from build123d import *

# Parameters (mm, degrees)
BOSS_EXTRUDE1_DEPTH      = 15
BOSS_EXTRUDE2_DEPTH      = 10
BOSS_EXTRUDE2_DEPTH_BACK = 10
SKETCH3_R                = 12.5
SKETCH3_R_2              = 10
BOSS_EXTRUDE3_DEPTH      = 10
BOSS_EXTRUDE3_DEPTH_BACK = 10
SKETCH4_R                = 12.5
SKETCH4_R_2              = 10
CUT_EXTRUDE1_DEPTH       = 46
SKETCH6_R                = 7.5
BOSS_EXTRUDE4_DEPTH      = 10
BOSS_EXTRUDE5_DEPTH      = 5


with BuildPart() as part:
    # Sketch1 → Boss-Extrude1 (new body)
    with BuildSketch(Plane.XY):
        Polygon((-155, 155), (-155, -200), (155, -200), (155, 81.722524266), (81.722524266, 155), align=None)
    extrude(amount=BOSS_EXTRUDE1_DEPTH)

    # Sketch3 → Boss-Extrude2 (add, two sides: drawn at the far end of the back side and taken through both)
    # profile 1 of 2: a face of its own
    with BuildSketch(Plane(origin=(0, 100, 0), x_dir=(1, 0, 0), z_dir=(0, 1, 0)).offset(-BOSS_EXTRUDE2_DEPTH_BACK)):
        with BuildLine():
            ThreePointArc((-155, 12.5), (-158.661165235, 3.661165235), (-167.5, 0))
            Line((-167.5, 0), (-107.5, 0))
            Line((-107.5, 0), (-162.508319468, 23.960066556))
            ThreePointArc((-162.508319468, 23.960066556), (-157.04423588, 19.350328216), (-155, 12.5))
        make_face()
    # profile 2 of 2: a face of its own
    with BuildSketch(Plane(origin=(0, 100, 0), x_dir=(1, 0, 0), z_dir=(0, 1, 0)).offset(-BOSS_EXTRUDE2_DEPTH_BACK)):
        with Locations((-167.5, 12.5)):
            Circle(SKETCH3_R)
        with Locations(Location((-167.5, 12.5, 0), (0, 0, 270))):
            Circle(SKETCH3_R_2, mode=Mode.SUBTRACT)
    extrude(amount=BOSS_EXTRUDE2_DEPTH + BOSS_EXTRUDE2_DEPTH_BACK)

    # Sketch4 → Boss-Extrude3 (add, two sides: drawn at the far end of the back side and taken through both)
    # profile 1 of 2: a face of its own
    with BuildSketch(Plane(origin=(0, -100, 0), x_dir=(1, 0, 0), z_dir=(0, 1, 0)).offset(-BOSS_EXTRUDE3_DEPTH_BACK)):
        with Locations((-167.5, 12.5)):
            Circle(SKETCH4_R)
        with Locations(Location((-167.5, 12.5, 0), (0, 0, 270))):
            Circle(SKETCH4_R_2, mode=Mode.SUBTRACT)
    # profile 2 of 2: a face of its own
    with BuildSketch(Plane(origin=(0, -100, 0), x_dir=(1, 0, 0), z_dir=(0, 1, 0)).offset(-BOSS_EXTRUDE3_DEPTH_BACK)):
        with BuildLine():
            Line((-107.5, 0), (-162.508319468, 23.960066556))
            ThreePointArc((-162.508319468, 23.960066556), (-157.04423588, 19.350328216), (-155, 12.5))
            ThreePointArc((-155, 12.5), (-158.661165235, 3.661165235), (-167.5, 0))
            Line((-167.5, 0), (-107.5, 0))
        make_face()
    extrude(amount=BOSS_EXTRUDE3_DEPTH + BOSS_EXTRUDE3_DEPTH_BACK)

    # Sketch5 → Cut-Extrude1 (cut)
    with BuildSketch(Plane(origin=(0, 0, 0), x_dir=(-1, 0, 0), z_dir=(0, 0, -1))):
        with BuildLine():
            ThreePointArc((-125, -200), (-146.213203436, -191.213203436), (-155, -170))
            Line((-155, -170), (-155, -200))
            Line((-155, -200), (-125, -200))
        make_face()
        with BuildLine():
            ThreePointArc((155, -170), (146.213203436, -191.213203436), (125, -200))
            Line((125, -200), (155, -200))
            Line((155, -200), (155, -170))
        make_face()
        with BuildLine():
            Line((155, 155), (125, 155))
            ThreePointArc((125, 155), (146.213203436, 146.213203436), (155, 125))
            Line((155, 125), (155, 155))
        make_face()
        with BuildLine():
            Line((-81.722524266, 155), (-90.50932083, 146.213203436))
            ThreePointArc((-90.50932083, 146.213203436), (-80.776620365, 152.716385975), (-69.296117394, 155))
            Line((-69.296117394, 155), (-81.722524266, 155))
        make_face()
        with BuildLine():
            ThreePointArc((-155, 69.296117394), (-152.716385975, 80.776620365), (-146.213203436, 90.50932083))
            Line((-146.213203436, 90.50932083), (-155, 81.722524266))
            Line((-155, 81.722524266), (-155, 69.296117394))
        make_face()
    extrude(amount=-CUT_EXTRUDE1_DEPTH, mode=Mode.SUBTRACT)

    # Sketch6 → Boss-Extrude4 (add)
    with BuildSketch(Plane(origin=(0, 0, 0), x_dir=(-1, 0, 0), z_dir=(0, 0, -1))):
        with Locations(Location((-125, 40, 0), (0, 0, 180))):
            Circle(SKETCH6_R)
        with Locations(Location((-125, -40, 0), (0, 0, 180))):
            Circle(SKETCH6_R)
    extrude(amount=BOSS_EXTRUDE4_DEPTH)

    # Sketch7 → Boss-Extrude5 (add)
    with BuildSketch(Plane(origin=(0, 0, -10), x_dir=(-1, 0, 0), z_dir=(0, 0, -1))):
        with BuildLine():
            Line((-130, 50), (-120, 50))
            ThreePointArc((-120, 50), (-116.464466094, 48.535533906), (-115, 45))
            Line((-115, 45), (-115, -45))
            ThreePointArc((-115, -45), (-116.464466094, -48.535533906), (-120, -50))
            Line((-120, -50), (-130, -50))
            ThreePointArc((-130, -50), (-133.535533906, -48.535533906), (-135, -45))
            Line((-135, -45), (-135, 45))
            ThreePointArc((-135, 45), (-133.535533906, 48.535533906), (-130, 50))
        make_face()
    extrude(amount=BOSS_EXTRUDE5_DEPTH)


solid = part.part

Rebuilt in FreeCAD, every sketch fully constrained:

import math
import FreeCAD as App
import Part
import Sketcher
from FreeCAD import Vector
Q = App.Units.Quantity


def add_polygon(sketch, points):
    """Adds a closed chain of lines whose ends are joined by coincident constraints."""
    first, n = sketch.GeometryCount, len(points)
    for a, b in zip(points, points[1:] + points[:1]):
        sketch.addGeometry(Part.LineSegment(App.Vector(*a, 0), App.Vector(*b, 0)), False)
    for i in range(n):
        sketch.addConstraint(Sketcher.Constraint("Coincident", first + i, 2, first + (i + 1) % n, 1))

doc = App.newDocument("Part")
body = doc.addObject("PartDesign::Body", "Body")

# Sketch on XY plane
sketch1 = doc.addObject("Sketcher::SketchObject", "Sketch")
body.addObject(sketch1)
sketch1.AttachmentSupport = (doc.XY_Plane, [""])
sketch1.MapMode = "FlatFace"
add_polygon(sketch1, [(-155, 155), (-155, -200), (155, -200), (155, 81.722524), (81.722524, 155)])  # lines 0-4
sketch1.addConstraint(Sketcher.Constraint("Vertical", 0))
sketch1.addConstraint(Sketcher.Constraint("Horizontal", 1))
sketch1.addConstraint(Sketcher.Constraint("Vertical", 2))
sketch1.addConstraint(Sketcher.Constraint("Horizontal", 4))
sketch1.addConstraint(Sketcher.Constraint("DistanceX", 1, 1, 1, 2, Q("310 mm")))
sketch1.addConstraint(Sketcher.Constraint("DistanceY", 0, 2, 0, 1, Q("355 mm")))
sketch1.addConstraint(Sketcher.Constraint("Angle", 3, Q("135 deg")))
sketch1.addConstraint(Sketcher.Constraint("DistanceX", 0, 2, -1, 1, Q("155 mm")))
sketch1.addConstraint(Sketcher.Constraint("DistanceY", 0, 2, -1, 1, Q("200 mm")))
sketch1.addConstraint(Sketcher.Constraint("Distance", 3, Q("103.63 mm")))
pad1 = doc.addObject("PartDesign::Pad", "Pad")
body.addObject(pad1)
pad1.Profile = sketch1
pad1.Length = 15

# Sketch on XZ plane
sketch2 = doc.addObject("Sketcher::SketchObject", "Sketch001")
body.addObject(sketch2)
sketch2.AttachmentSupport = (doc.XZ_Plane, [""])
sketch2.MapMode = "FlatFace"
sketch2.AttachmentOffset = App.Placement(Vector(0, 0, -100), App.Rotation())
sketch2.addGeometry(Part.LineSegment(Vector(-167.5, 0, 0), Vector(-107.5, 0, 0)), False)
sketch2.addGeometry(Part.LineSegment(Vector(-107.5, 0, 0), Vector(-162.508319, -23.960067, 0)), False)
sketch2.addGeometry(Part.ArcOfCircle(Part.Circle(Vector(-167.5, -12.5, 0), Vector(0, 0, 1), 12.5), math.radians(90), math.radians(293.536578)), False)
sketch2.addGeometry(Part.Circle(Vector(-167.5, -12.5, 0), Vector(0, 0, 1), 10), False)
sketch2.addConstraint(Sketcher.Constraint("Coincident", 0, 2, 1, 1))
sketch2.addConstraint(Sketcher.Constraint("Tangent", 1, 2, 2, 2))
sketch2.addConstraint(Sketcher.Constraint("Tangent", 2, 1, 0, 1))
sketch2.addConstraint(Sketcher.Constraint("Horizontal", 0))
sketch2.addConstraint(Sketcher.Constraint("Coincident", 3, 3, 2, 3))
sketch2.addConstraint(Sketcher.Constraint("PointOnObject", 0, 2, -1))
sketch2.addConstraint(Sketcher.Constraint("Diameter", 3, Q("20 mm")))
sketch2.addConstraint(Sketcher.Constraint("Radius", 2, Q("12.5 mm")))
sketch2.addConstraint(Sketcher.Constraint("DistanceX", 0, 1, 0, 2, Q("60 mm")))
sketch2.addConstraint(Sketcher.Constraint("DistanceX", 2, 3, -1, 1, Q("167.5 mm")))
pad2 = doc.addObject("PartDesign::Pad", "Pad001")
body.addObject(pad2)
pad2.Profile = sketch2
pad2.Type = "TwoLengths"
pad2.Length = 10
pad2.Length2 = 10
pad2.Reversed = True

# Sketch on XZ plane
sketch3 = doc.addObject("Sketcher::SketchObject", "Sketch002")
body.addObject(sketch3)
sketch3.AttachmentSupport = (doc.XZ_Plane, [""])
sketch3.MapMode = "FlatFace"
sketch3.AttachmentOffset = App.Placement(Vector(0, 0, 100), App.Rotation())
sketch3.addGeometry(Part.ArcOfCircle(Part.Circle(Vector(-167.5, -12.5, 0), Vector(0, 0, 1), 12.5), math.radians(90), math.radians(293.536578)), False)
sketch3.addGeometry(Part.LineSegment(Vector(-167.5, 0, 0), Vector(-107.5, 0, 0)), False)
sketch3.addGeometry(Part.LineSegment(Vector(-107.5, 0, 0), Vector(-162.508319, -23.960067, 0)), False)
sketch3.addGeometry(Part.Circle(Vector(-167.5, -12.5, 0), Vector(0, 0, 1), 10), False)
sketch3.addConstraint(Sketcher.Constraint("Tangent", 0, 1, 1, 1))
sketch3.addConstraint(Sketcher.Constraint("Coincident", 1, 2, 2, 1))
sketch3.addConstraint(Sketcher.Constraint("Tangent", 2, 2, 0, 2))
sketch3.addConstraint(Sketcher.Constraint("Horizontal", 1))
sketch3.addConstraint(Sketcher.Constraint("Coincident", 3, 3, 0, 3))
sketch3.addConstraint(Sketcher.Constraint("PointOnObject", 0, 1, -1))
sketch3.addConstraint(Sketcher.Constraint("Diameter", 3, Q("20 mm")))
sketch3.addConstraint(Sketcher.Constraint("Radius", 0, Q("12.5 mm")))
sketch3.addConstraint(Sketcher.Constraint("DistanceX", 1, 1, 1, 2, Q("60 mm")))
sketch3.addConstraint(Sketcher.Constraint("DistanceX", 0, 3, -1, 1, Q("167.5 mm")))
pad3 = doc.addObject("PartDesign::Pad", "Pad002")
body.addObject(pad3)
pad3.Profile = sketch3
pad3.Type = "TwoLengths"
pad3.Length = 10
pad3.Length2 = 10
pad3.Reversed = True

# Sketch on XY plane
sketch4 = doc.addObject("Sketcher::SketchObject", "Sketch003")
body.addObject(sketch4)
sketch4.AttachmentSupport = (doc.XY_Plane, [""])
sketch4.MapMode = "FlatFace"
sketch4.addGeometry(Part.ArcOfCircle(Part.Circle(Vector(125, -170, 0), Vector(0, 0, 1), 30), math.radians(-90), math.radians(0)), False)
sketch4.addGeometry(Part.LineSegment(Vector(155, -170, 0), Vector(155, -200, 0)), False)
sketch4.addGeometry(Part.LineSegment(Vector(155, -200, 0), Vector(125, -200, 0)), False)
sketch4.addGeometry(Part.ArcOfCircle(Part.Circle(Vector(-125, -170, 0), Vector(0, 0, 1), 30), math.radians(180), math.radians(270)), False)
sketch4.addGeometry(Part.LineSegment(Vector(-125, -200, 0), Vector(-155, -200, 0)), False)
sketch4.addGeometry(Part.LineSegment(Vector(-155, -200, 0), Vector(-155, -170, 0)), False)
sketch4.addGeometry(Part.LineSegment(Vector(-155, 155, 0), Vector(-125, 155, 0)), False)
sketch4.addGeometry(Part.ArcOfCircle(Part.Circle(Vector(-125, 125, 0), Vector(0, 0, 1), 30), math.radians(90), math.radians(180)), False)
sketch4.addGeometry(Part.LineSegment(Vector(-155, 125, 0), Vector(-155, 155, 0)), False)
sketch4.addGeometry(Part.LineSegment(Vector(81.722524, 155, 0), Vector(90.509321, 146.213203, 0)), False)
sketch4.addGeometry(Part.ArcOfCircle(Part.Circle(Vector(69.296117, 125, 0), Vector(0, 0, 1), 30), math.radians(45), math.radians(90)), False)
sketch4.addGeometry(Part.LineSegment(Vector(69.296117, 155, 0), Vector(81.722524, 155, 0)), False)
sketch4.addGeometry(Part.ArcOfCircle(Part.Circle(Vector(125, 69.296117, 0), Vector(0, 0, 1), 30), math.radians(0), math.radians(45)), False)
sketch4.addGeometry(Part.LineSegment(Vector(146.213203, 90.509321, 0), Vector(155, 81.722524, 0)), False)
sketch4.addGeometry(Part.LineSegment(Vector(155, 81.722524, 0), Vector(155, 69.296117, 0)), False)
sketch4.addConstraint(Sketcher.Constraint("Tangent", 0, 2, 1, 1))
sketch4.addConstraint(Sketcher.Constraint("Coincident", 1, 2, 2, 1))
sketch4.addConstraint(Sketcher.Constraint("Tangent", 2, 2, 0, 1))
sketch4.addConstraint(Sketcher.Constraint("Tangent", 3, 2, 4, 1))
sketch4.addConstraint(Sketcher.Constraint("Coincident", 4, 2, 5, 1))
sketch4.addConstraint(Sketcher.Constraint("Tangent", 5, 2, 3, 1))
sketch4.addConstraint(Sketcher.Constraint("Tangent", 6, 2, 7, 1))
sketch4.addConstraint(Sketcher.Constraint("Tangent", 7, 2, 8, 1))
sketch4.addConstraint(Sketcher.Constraint("Coincident", 8, 2, 6, 1))
sketch4.addConstraint(Sketcher.Constraint("Tangent", 9, 2, 10, 1))
sketch4.addConstraint(Sketcher.Constraint("Tangent", 10, 2, 11, 1))
sketch4.addConstraint(Sketcher.Constraint("Coincident", 11, 2, 9, 1))
sketch4.addConstraint(Sketcher.Constraint("Tangent", 12, 2, 13, 1))
sketch4.addConstraint(Sketcher.Constraint("Coincident", 13, 2, 14, 1))
sketch4.addConstraint(Sketcher.Constraint("Tangent", 14, 2, 12, 1))
sketch4.addConstraint(Sketcher.Constraint("Vertical", 1))
sketch4.addConstraint(Sketcher.Constraint("Horizontal", 2))
sketch4.addConstraint(Sketcher.Constraint("Horizontal", 4))
sketch4.addConstraint(Sketcher.Constraint("Vertical", 5))
sketch4.addConstraint(Sketcher.Constraint("Horizontal", 6))
sketch4.addConstraint(Sketcher.Constraint("Vertical", 8))
sketch4.addConstraint(Sketcher.Constraint("Horizontal", 11))
sketch4.addConstraint(Sketcher.Constraint("Vertical", 14))
sketch4.addConstraint(Sketcher.Constraint("Equal", 0, 3))
sketch4.addConstraint(Sketcher.Constraint("Equal", 3, 7))
sketch4.addConstraint(Sketcher.Constraint("Equal", 7, 10))
sketch4.addConstraint(Sketcher.Constraint("Equal", 10, 12))
sketch4.addConstraint(Sketcher.Constraint("Symmetric", 0, 3, 3, 3, -2))
sketch4.addConstraint(Sketcher.Constraint("Parallel", 9, 13))
sketch4.addConstraint(Sketcher.Constraint("Horizontal", 7, 3, 10, 3))
sketch4.addConstraint(Sketcher.Constraint("Vertical", 3, 3, 7, 3))
sketch4.addConstraint(Sketcher.Constraint("Vertical", 0, 3, 12, 3))
sketch4.addConstraint(Sketcher.Constraint("Equal", 11, 14))
sketch4.addConstraint(Sketcher.Constraint("Radius", 0, Q("30 mm")))
sketch4.addConstraint(Sketcher.Constraint("DistanceX", -1, 1, 0, 3, Q("125 mm")))
sketch4.addConstraint(Sketcher.Constraint("DistanceY", 0, 3, -1, 1, Q("170 mm")))
sketch4.addConstraint(Sketcher.Constraint("DistanceY", -1, 1, 7, 3, Q("125 mm")))
sketch4.addConstraint(Sketcher.Constraint("DistanceX", -1, 1, 9, 2, Q("90.509321 mm")))
sketch4.addConstraint(Sketcher.Constraint("DistanceY", -1, 1, 12, 2, Q("90.509321 mm")))
pocket1 = doc.addObject("PartDesign::Pocket", "Pocket")
body.addObject(pocket1)
pocket1.Profile = sketch4
pocket1.Length = 46
pocket1.Reversed = True

# Sketch on XY plane
sketch5 = doc.addObject("Sketcher::SketchObject", "Sketch004")
body.addObject(sketch5)
sketch5.AttachmentSupport = (doc.XY_Plane, [""])
sketch5.MapMode = "FlatFace"
sketch5.addGeometry(Part.Circle(Vector(125, 40, 0), Vector(0, 0, 1), 7.5), False)
sketch5.addGeometry(Part.Circle(Vector(125, -40, 0), Vector(0, 0, 1), 7.5), False)
sketch5.addConstraint(Sketcher.Constraint("Equal", 0, 1))
sketch5.addConstraint(Sketcher.Constraint("Symmetric", 0, 3, 1, 3, -1))
sketch5.addConstraint(Sketcher.Constraint("Diameter", 0, Q("15 mm")))
sketch5.addConstraint(Sketcher.Constraint("DistanceX", -1, 1, 0, 3, Q("125 mm")))
sketch5.addConstraint(Sketcher.Constraint("DistanceY", -1, 1, 0, 3, Q("40 mm")))
pad4 = doc.addObject("PartDesign::Pad", "Pad003")
body.addObject(pad4)
pad4.Profile = sketch5
pad4.Length = 10
pad4.Reversed = True

# Sketch on XY plane
sketch6 = doc.addObject("Sketcher::SketchObject", "Sketch005")
body.addObject(sketch6)
sketch6.AttachmentSupport = (doc.XY_Plane, [""])
sketch6.MapMode = "FlatFace"
sketch6.AttachmentOffset = App.Placement(Vector(0, 0, -10), App.Rotation())
sketch6.addGeometry(Part.LineSegment(Vector(120, 50, 0), Vector(130, 50, 0)), False)
sketch6.addGeometry(Part.ArcOfCircle(Part.Circle(Vector(130, 45, 0), Vector(0, 0, 1), 5), math.radians(0), math.radians(90)), False)
sketch6.addGeometry(Part.LineSegment(Vector(135, 45, 0), Vector(135, -45, 0)), False)
sketch6.addGeometry(Part.ArcOfCircle(Part.Circle(Vector(130, -45, 0), Vector(0, 0, 1), 5), math.radians(-90), math.radians(0)), False)
sketch6.addGeometry(Part.LineSegment(Vector(130, -50, 0), Vector(120, -50, 0)), False)
sketch6.addGeometry(Part.ArcOfCircle(Part.Circle(Vector(120, -45, 0), Vector(0, 0, 1), 5), math.radians(180), math.radians(270)), False)
sketch6.addGeometry(Part.LineSegment(Vector(115, -45, 0), Vector(115, 45, 0)), False)
sketch6.addGeometry(Part.ArcOfCircle(Part.Circle(Vector(120, 45, 0), Vector(0, 0, 1), 5), math.radians(90), math.radians(180)), False)
sketch6.addConstraint(Sketcher.Constraint("Tangent", 0, 2, 1, 2))
sketch6.addConstraint(Sketcher.Constraint("Tangent", 1, 1, 2, 1))
sketch6.addConstraint(Sketcher.Constraint("Tangent", 2, 2, 3, 2))
sketch6.addConstraint(Sketcher.Constraint("Tangent", 3, 1, 4, 1))
sketch6.addConstraint(Sketcher.Constraint("Tangent", 4, 2, 5, 2))
sketch6.addConstraint(Sketcher.Constraint("Tangent", 5, 1, 6, 1))
sketch6.addConstraint(Sketcher.Constraint("Tangent", 6, 2, 7, 2))
sketch6.addConstraint(Sketcher.Constraint("Tangent", 7, 1, 0, 1))
sketch6.addConstraint(Sketcher.Constraint("Horizontal", 0))
sketch6.addConstraint(Sketcher.Constraint("Vertical", 2))
sketch6.addConstraint(Sketcher.Constraint("Horizontal", 4))
sketch6.addConstraint(Sketcher.Constraint("Vertical", 6))
sketch6.addConstraint(Sketcher.Constraint("Equal", 1, 3))
sketch6.addConstraint(Sketcher.Constraint("Equal", 3, 5))
sketch6.addConstraint(Sketcher.Constraint("Equal", 5, 7))
sketch6.addConstraint(Sketcher.Constraint("Radius", 1, Q("5 mm")))
sketch6.addConstraint(Sketcher.Constraint("DistanceX", 0, 1, 0, 2, Q("10 mm")))
sketch6.addConstraint(Sketcher.Constraint("DistanceY", 2, 2, 2, 1, Q("90 mm")))
sketch6.addConstraint(Sketcher.Constraint("DistanceX", -1, 1, 1, 3, Q("130 mm")))
sketch6.addConstraint(Sketcher.Constraint("DistanceY", -1, 1, 1, 3, Q("45 mm")))
pad5 = doc.addObject("PartDesign::Pad", "Pad004")
body.addObject(pad5)
pad5.Profile = sketch6
pad5.Length = 5
pad5.Reversed = True

doc.recompute()
